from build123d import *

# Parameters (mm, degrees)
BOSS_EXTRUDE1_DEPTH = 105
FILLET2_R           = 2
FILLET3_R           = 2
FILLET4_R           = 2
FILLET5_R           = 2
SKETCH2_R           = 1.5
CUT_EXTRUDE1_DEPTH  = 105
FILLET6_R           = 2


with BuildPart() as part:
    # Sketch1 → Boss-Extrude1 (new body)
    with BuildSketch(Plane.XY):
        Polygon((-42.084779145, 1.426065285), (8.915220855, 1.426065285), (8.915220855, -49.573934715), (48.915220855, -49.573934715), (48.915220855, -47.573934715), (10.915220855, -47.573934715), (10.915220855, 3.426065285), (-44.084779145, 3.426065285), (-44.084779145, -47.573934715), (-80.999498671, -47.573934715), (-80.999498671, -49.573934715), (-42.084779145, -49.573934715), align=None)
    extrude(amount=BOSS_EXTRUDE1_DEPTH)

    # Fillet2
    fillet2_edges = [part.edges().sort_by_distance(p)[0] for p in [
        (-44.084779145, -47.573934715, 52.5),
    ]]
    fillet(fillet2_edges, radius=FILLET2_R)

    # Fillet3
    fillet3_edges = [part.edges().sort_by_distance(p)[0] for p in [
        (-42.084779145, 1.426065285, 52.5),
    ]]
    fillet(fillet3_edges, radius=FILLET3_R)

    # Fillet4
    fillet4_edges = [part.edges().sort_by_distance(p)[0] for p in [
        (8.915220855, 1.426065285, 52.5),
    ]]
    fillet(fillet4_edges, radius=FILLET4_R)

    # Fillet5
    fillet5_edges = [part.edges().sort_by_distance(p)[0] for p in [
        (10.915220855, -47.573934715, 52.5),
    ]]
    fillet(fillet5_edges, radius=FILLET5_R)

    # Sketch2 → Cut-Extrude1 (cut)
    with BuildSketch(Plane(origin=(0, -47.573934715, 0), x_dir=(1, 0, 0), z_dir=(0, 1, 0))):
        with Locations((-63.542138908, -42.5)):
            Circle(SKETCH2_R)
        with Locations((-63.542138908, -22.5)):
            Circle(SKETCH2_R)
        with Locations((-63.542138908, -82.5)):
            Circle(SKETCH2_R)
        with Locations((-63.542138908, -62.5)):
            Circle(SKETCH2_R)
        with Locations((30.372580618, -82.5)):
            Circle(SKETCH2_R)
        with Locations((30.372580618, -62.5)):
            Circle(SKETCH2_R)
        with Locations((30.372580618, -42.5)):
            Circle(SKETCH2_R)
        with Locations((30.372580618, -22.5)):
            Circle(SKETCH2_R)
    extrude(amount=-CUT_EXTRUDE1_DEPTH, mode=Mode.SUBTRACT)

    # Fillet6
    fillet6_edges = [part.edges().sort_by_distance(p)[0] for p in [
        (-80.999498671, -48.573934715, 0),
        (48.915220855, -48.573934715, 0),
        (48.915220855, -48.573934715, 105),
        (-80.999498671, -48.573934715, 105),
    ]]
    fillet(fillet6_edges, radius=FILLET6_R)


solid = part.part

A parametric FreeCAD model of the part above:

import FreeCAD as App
import Part
import Sketcher
from FreeCAD import Vector
Q = App.Units.Quantity


def edges_at(feature, points):
    """Names of the edges that pass closest to the given points."""
    edges = feature.Shape.Edges
    near = lambda p: min(range(len(edges)), key=lambda i: edges[i].distToShape(Part.Vertex(*p))[0])
    return sorted({f"Edge{near(p) + 1}" for p in points})

doc = App.newDocument("Part")
body = doc.addObject("PartDesign::Body", "Body")

sketch1 = body.newObject("Sketcher::SketchObject", "Sketch")
sketch1.AttachmentSupport = (doc.getObject("XY_Plane"), [""])
sketch1.MapMode = "FlatFace"
sketch1.addGeometry([
    Part.LineSegment(Vector(-42.084779, 1.426065, 0), Vector(8.915221, 1.426065, 0)),
    Part.LineSegment(Vector(8.915221, 1.426065, 0), Vector(8.915221, -49.573935, 0)),
    Part.LineSegment(Vector(8.915221, -49.573935, 0), Vector(48.915221, -49.573935, 0)),
    Part.LineSegment(Vector(48.915221, -49.573935, 0), Vector(48.915221, -47.573935, 0)),
    Part.LineSegment(Vector(48.915221, -47.573935, 0), Vector(10.915221, -47.573935, 0)),
    Part.LineSegment(Vector(10.915221, -47.573935, 0), Vector(10.915221, 3.426065, 0)),
    Part.LineSegment(Vector(10.915221, 3.426065, 0), Vector(-44.084779, 3.426065, 0)),
    Part.LineSegment(Vector(-44.084779, 3.426065, 0), Vector(-44.084779, -47.573935, 0)),
    Part.LineSegment(Vector(-44.084779, -47.573935, 0), Vector(-80.999499, -47.573935, 0)),
    Part.LineSegment(Vector(-80.999499, -47.573935, 0), Vector(-80.999499, -49.573935, 0)),
    Part.LineSegment(Vector(-80.999499, -49.573935, 0), Vector(-42.084779, -49.573935, 0)),
    Part.LineSegment(Vector(-42.084779, -49.573935, 0), Vector(-42.084779, 1.426065, 0)),
], False)
sketch1.addConstraint([
    Sketcher.Constraint("Coincident", 0, 2, 1, 1),
    Sketcher.Constraint("Coincident", 1, 2, 2, 1),
    Sketcher.Constraint("Coincident", 2, 2, 3, 1),
    Sketcher.Constraint("Coincident", 3, 2, 4, 1),
    Sketcher.Constraint("Coincident", 4, 2, 5, 1),
    Sketcher.Constraint("Coincident", 5, 2, 6, 1),
    Sketcher.Constraint("Coincident", 6, 2, 7, 1),
    Sketcher.Constraint("Coincident", 7, 2, 8, 1),
    Sketcher.Constraint("Coincident", 8, 2, 9, 1),
    Sketcher.Constraint("Coincident", 9, 2, 10, 1),
    Sketcher.Constraint("Coincident", 10, 2, 11, 1),
    Sketcher.Constraint("Coincident", 11, 2, 0, 1),
    Sketcher.Constraint("Horizontal", 0),
    Sketcher.Constraint("Vertical", 1),
    Sketcher.Constraint("Horizontal", 2),
    Sketcher.Constraint("Vertical", 3),
    Sketcher.Constraint("Horizontal", 4),
    Sketcher.Constraint("Vertical", 5),
    Sketcher.Constraint("Horizontal", 6),
    Sketcher.Constraint("Vertical", 7),
    Sketcher.Constraint("Horizontal", 8),
    Sketcher.Constraint("Vertical", 9),
    Sketcher.Constraint("Horizontal", 10),
    Sketcher.Constraint("Vertical", 11),
    Sketcher.Constraint("Horizontal", 4, 2, 7, 2),
    Sketcher.Constraint("Horizontal", 2, 2, 9, 2),
    Sketcher.Constraint("Equal", 0, 1),
    Sketcher.Constraint("Equal", 1, 5),
    Sketcher.Constraint("DistanceX", 0, 1, 0, 2, Q("51 mm")),
    Sketcher.Constraint("DistanceX", 2, 1, 2, 2, Q("40 mm")),
    Sketcher.Constraint("DistanceX", 4, 2, 4, 1, Q("38 mm")),
    Sketcher.Constraint("DistanceX", 6, 2, 6, 1, Q("55 mm")),
    Sketcher.Constraint("DistanceY", 3, 1, 3, 2, Q("2 mm")),
    Sketcher.Constraint("DistanceX", 8, 2, 8, 1, Q("36.91472 mm")),
    Sketcher.Constraint("DistanceX", 8, 2, -1, 1, Q("80.999499 mm")),
    Sketcher.Constraint("DistanceY", -1, 1, 0, 2, Q("1.426065 mm")),
])
pad1 = body.newObject("PartDesign::Pad", "Pad")
pad1.Profile = sketch1
pad1.Length = 105
doc.recompute()

fillet = body.newObject("PartDesign::Fillet", "Fillet")
fillet.Base = (pad1, edges_at(pad1, [(-44.085, -47.574, 52.5)]))
fillet.Radius = 2
doc.recompute()

fillet2 = body.newObject("PartDesign::Fillet", "Fillet001")
fillet2.Base = (fillet, edges_at(fillet, [(-42.085, 1.426, 52.5)]))
fillet2.Radius = 2
doc.recompute()

fillet3 = body.newObject("PartDesign::Fillet", "Fillet002")
fillet3.Base = (fillet2, edges_at(fillet2, [(8.915, 1.426, 52.5)]))
fillet3.Radius = 2
doc.recompute()

fillet4 = body.newObject("PartDesign::Fillet", "Fillet003")
fillet4.Base = (fillet3, edges_at(fillet3, [(10.915, -47.574, 52.5)]))
fillet4.Radius = 2

sketch2 = body.newObject("Sketcher::SketchObject", "Sketch001")
sketch2.AttachmentSupport = (doc.getObject("XZ_Plane"), [""])
sketch2.MapMode = "FlatFace"
sketch2.AttachmentOffset = App.Placement(Vector(0, 0, 47.573935), App.Rotation())
sketch2.addGeometry([
    Part.Circle(Vector(-63.542139, 42.5, 0), Vector(0, 0, 1), 1.5),
    Part.Circle(Vector(-63.542139, 22.5, 0), Vector(0, 0, 1), 1.5),
    Part.Circle(Vector(-63.542139, 82.5, 0), Vector(0, 0, 1), 1.5),
    Part.Circle(Vector(-63.542139, 62.5, 0), Vector(0, 0, 1), 1.5),
    Part.Circle(Vector(30.372581, 82.5, 0), Vector(0, 0, 1), 1.5),
    Part.Circle(Vector(30.372581, 62.5, 0), Vector(0, 0, 1), 1.5),
    Part.Circle(Vector(30.372581, 42.5, 0), Vector(0, 0, 1), 1.5),
    Part.Circle(Vector(30.372581, 22.5, 0), Vector(0, 0, 1), 1.5),
], False)
sketch2.addConstraint([
    Sketcher.Constraint("Equal", 0, 1),
    Sketcher.Constraint("Equal", 1, 2),
    Sketcher.Constraint("Equal", 2, 3),
    Sketcher.Constraint("Equal", 3, 4),
    Sketcher.Constraint("Equal", 4, 5),
    Sketcher.Constraint("Equal", 5, 6),
    Sketcher.Constraint("Equal", 6, 7),
    Sketcher.Constraint("Horizontal", 2, 3, 4, 3),
    Sketcher.Constraint("Horizontal", 3, 3, 5, 3),
    Sketcher.Constraint("Horizontal", 0, 3, 6, 3),
    Sketcher.Constraint("Horizontal", 1, 3, 7, 3),
    Sketcher.Constraint("Vertical", 0, 3, 1, 3),
    Sketcher.Constraint("Vertical", 1, 3, 2, 3),
    Sketcher.Constraint("Vertical", 2, 3, 3, 3),
    Sketcher.Constraint("Vertical", 4, 3, 5, 3),
    Sketcher.Constraint("Vertical", 5, 3, 6, 3),
    Sketcher.Constraint("Vertical", 6, 3, 7, 3),
    Sketcher.Constraint("Diameter", 0, Q("3 mm")),
    Sketcher.Constraint("DistanceY", 1, 3, 0, 3, Q("20 mm")),
    Sketcher.Constraint("DistanceY", 0, 3, 2, 3, Q("40 mm")),
    Sketcher.Constraint("DistanceY", 0, 3, 3, 3, Q("20 mm")),
    Sketcher.Constraint("DistanceY", -1, 1, 0, 3, Q("42.5 mm")),
    Sketcher.Constraint("DistanceX", 0, 3, -1, 1, Q("63.542139 mm")),
    Sketcher.Constraint("DistanceX", -1, 1, 4, 3, Q("30.372581 mm")),
])
pocket1 = body.newObject("PartDesign::Pocket", "Pocket")
pocket1.Profile = sketch2
pocket1.Length = 105
pocket1.Reversed = True
doc.recompute()

fillet5 = body.newObject("PartDesign::Fillet", "Fillet004")
fillet5.Base = (pocket1, edges_at(pocket1, [
    (-80.999, -48.574, 0),
    (48.915, -48.574, 0),
    (48.915, -48.574, 105),
    (-80.999, -48.574, 105),
]))
fillet5.Radius = 2

doc.recompute()
